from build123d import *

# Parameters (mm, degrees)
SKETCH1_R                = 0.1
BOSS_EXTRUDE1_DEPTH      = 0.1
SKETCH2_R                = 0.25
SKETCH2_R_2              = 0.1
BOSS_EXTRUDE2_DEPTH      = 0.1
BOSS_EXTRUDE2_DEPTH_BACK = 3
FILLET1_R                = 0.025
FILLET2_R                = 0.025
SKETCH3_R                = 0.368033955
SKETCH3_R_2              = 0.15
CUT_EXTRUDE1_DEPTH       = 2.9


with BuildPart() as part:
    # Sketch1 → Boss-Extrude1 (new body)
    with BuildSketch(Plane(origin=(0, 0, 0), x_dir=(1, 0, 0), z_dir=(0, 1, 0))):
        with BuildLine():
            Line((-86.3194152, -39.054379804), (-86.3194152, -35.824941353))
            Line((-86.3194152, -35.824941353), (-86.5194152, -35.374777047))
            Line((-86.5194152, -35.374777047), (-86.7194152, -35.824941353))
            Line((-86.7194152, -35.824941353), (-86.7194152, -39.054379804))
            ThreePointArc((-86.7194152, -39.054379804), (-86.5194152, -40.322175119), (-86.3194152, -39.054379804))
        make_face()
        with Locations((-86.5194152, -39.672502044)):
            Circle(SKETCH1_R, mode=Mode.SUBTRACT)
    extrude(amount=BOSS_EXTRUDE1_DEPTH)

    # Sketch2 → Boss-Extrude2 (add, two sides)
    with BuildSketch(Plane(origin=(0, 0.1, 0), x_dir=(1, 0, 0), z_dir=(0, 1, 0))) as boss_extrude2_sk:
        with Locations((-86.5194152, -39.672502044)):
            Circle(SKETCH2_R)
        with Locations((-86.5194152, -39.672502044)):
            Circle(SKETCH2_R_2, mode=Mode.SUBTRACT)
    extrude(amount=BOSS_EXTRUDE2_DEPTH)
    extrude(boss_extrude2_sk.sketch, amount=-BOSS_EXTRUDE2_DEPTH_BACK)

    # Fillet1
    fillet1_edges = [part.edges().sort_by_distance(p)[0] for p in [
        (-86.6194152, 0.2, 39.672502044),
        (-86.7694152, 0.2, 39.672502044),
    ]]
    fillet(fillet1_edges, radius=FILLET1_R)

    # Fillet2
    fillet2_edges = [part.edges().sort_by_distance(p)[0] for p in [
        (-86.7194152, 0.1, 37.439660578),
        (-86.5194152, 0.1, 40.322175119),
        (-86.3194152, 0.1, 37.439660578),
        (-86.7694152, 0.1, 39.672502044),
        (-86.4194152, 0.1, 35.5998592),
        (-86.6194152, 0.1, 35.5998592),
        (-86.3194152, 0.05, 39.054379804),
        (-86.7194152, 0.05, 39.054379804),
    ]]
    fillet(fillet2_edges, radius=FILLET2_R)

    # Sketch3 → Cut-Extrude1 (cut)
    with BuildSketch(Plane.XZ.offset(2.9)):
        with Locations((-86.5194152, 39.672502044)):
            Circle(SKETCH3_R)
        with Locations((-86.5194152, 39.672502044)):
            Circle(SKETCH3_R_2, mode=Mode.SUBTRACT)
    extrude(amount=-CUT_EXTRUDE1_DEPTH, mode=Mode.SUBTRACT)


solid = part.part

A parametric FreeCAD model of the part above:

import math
import FreeCAD as App
import Part
import Sketcher

V = App.Vector
Q = App.Units.Quantity


def edges_at(feature, points):
    """Names of the edges that pass closest to the given points."""
    edges = feature.Shape.Edges
    near = lambda p: min(range(len(edges)), key=lambda i: edges[i].distToShape(Part.Vertex(*p))[0])
    return sorted({f"Edge{near(p) + 1}" for p in points})

doc = App.newDocument("Part")
params = doc.addObject("Spreadsheet::Sheet", "Params")
for row, (alias, value) in enumerate([
    ("sketch1_diameter", "0.2 mm"),
    ("pad1_length", "0.1 mm"),
    ("sketch2_diameter", "0.5 mm"),
    ("sketch2_diameter2", "0.2 mm"),
    ("pad2_length", "0.1 mm"),
    ("pad2_length2", "3 mm"),
    ("fillet_radius", "0.025 mm"),
    ("fillet2_radius", "0.025 mm"),
    ("sketch3_diameter", "0.3 mm"),
    ("pocket1_length", "2.9 mm"),
], start=1):
    params.set(f"A{row}", alias)
    params.set(f"B{row}", "=" + value)
    params.setAlias(f"B{row}", alias)

body = doc.addObject("PartDesign::Body", "Body")

# Sketch on XZ plane
sketch1 = body.newObject("Sketcher::SketchObject", "Sketch")
sketch1.AttachmentSupport = (doc.getObject("XZ_Plane"), [""])
sketch1.MapMode = "FlatFace"
sketch1.addGeometry([
    Part.LineSegment(V(-86.32, 39.05, 0), V(-86.32, 35.82, 0)),  # 0
    Part.LineSegment(V(-86.32, 35.82, 0), V(-86.52, 35.37, 0)),  # 1
    Part.LineSegment(V(-86.52, 35.37, 0), V(-86.72, 35.82, 0)),  # 2
    Part.LineSegment(V(-86.72, 35.82, 0), V(-86.72, 39.05, 0)),  # 3
    Part.ArcOfCircle(Part.Circle(V(-86.52, 39.67, 0), V(0, 0, 1), 0.65), math.radians(-72), math.radians(252)),  # 4
    Part.Circle(V(-86.52, 39.67, 0), V(0, 0, 1), 0.1),  # 5
], False)
sketch1.addConstraint([
    Sketcher.Constraint("Coincident", 0, 2, 1, 1),
    Sketcher.Constraint("Coincident", 1, 2, 2, 1),
    Sketcher.Constraint("Coincident", 2, 2, 3, 1),
    Sketcher.Constraint("Coincident", 3, 2, 4, 2),
    Sketcher.Constraint("Coincident", 4, 1, 0, 1),
    Sketcher.Constraint("Vertical", 0),
    Sketcher.Constraint("Vertical", 3),
    Sketcher.Constraint("Coincident", 5, 3, 4, 3),
    Sketcher.Constraint("Horizontal", 0, 2, 2, 2),
    Sketcher.Constraint("Horizontal", 3, 2, 4, 1),
    Sketcher.Constraint("Vertical", 5, 3, 1, 2),
    Sketcher.Constraint("Diameter", 5, Q("0.2 mm")),
    Sketcher.Constraint("DistanceX", 4, 3, 0, 2, Q("0.2 mm")),
    Sketcher.Constraint("Radius", 4, Q("0.649673 mm")),
    Sketcher.Constraint("DistanceY", 0, 2, 0, 1, Q("3.229438 mm")),
    Sketcher.Constraint("DistanceY", -1, 1, 0, 2, Q("35.824941 mm")),
    Sketcher.Constraint("Distance", 1, Q("0.492593 mm")),
    Sketcher.Constraint("DistanceX", 4, 3, -1, 1, Q("86.519415 mm")),
])
sketch1.setExpression("Constraints[11]", "Params.sketch1_diameter")
pad1 = body.newObject("PartDesign::Pad", "Pad")
pad1.Profile = sketch1
pad1.setExpression("Length", "Params.pad1_length")
pad1.Reversed = True

# Sketch on XZ plane
sketch2 = body.newObject("Sketcher::SketchObject", "Sketch001")
sketch2.AttachmentSupport = (doc.getObject("XZ_Plane"), [""])
sketch2.MapMode = "FlatFace"
sketch2.AttachmentOffset = App.Placement(V(0, 0, -0.1), App.Rotation())
sketch2.addGeometry([
    Part.Circle(V(-86.52, 39.67, 0), V(0, 0, 1), 0.25),
    Part.Circle(V(-86.52, 39.67, 0), V(0, 0, 1), 0.1),
], False)
sketch2.addConstraint([
    Sketcher.Constraint("Coincident", 1, 3, 0, 3),
    Sketcher.Constraint("Diameter", 0, Q("0.5 mm")),
    Sketcher.Constraint("Diameter", 1, Q("0.2 mm")),
    Sketcher.Constraint("DistanceX", 0, 3, -1, 1, Q("86.519415 mm")),
    Sketcher.Constraint("DistanceY", -1, 1, 0, 3, Q("39.672502 mm")),
])
sketch2.setExpression("Constraints[1]", "Params.sketch2_diameter")
sketch2.setExpression("Constraints[2]", "Params.sketch2_diameter2")
pad2 = body.newObject("PartDesign::Pad", "Pad001")
pad2.Profile = sketch2
pad2.Type = "TwoLengths"
pad2.setExpression("Length", "Params.pad2_length")
pad2.setExpression("Length2", "Params.pad2_length2")
pad2.Reversed = True
doc.recompute()

fillet = body.newObject("PartDesign::Fillet", "Fillet")
fillet.Base = (pad2, edges_at(pad2, [(-86.619, 0.2, 39.673), (-86.769, 0.2, 39.673)]))
fillet.setExpression("Radius", "Params.fillet_radius")
doc.recompute()

fillet2 = body.newObject("PartDesign::Fillet", "Fillet001")
fillet2.Base = (fillet, edges_at(fillet, [
    (-86.719, 0.1, 37.44),
    (-86.519, 0.1, 40.322),
    (-86.319, 0.1, 37.44),
    (-86.769, 0.1, 39.673),
    (-86.419, 0.1, 35.6),
    (-86.619, 0.1, 35.6),
    (-86.319, 0.05, 39.054),
    (-86.719, 0.05, 39.054),
]))
fillet2.setExpression("Radius", "Params.fillet2_radius")

# Sketch on XZ plane
sketch3 = body.newObject("Sketcher::SketchObject", "Sketch002")
sketch3.AttachmentSupport = (doc.getObject("XZ_Plane"), [""])
sketch3.MapMode = "FlatFace"
sketch3.AttachmentOffset = App.Placement(V(0, 0, 2.9), App.Rotation())
sketch3.addGeometry([
    Part.Circle(V(-86.52, 39.67, 0), V(0, 0, 1), 0.37),
    Part.Circle(V(-86.52, 39.67, 0), V(0, 0, 1), 0.15),
], False)
sketch3.addConstraint([
    Sketcher.Constraint("Coincident", 1, 3, 0, 3),
    Sketcher.Constraint("Diameter", 1, Q("0.3 mm")),
    Sketcher.Constraint("Diameter", 0, Q("0.736068 mm")),
    Sketcher.Constraint("DistanceX", 0, 3, -1, 1, Q("86.519415 mm")),
    Sketcher.Constraint("DistanceY", -1, 1, 0, 3, Q("39.672502 mm")),
])
sketch3.setExpression("Constraints[1]", "Params.sketch3_diameter")
pocket1 = body.newObject("PartDesign::Pocket", "Pocket")
pocket1.Profile = sketch3
pocket1.setExpression("Length", "Params.pocket1_length")

doc.recompute()
